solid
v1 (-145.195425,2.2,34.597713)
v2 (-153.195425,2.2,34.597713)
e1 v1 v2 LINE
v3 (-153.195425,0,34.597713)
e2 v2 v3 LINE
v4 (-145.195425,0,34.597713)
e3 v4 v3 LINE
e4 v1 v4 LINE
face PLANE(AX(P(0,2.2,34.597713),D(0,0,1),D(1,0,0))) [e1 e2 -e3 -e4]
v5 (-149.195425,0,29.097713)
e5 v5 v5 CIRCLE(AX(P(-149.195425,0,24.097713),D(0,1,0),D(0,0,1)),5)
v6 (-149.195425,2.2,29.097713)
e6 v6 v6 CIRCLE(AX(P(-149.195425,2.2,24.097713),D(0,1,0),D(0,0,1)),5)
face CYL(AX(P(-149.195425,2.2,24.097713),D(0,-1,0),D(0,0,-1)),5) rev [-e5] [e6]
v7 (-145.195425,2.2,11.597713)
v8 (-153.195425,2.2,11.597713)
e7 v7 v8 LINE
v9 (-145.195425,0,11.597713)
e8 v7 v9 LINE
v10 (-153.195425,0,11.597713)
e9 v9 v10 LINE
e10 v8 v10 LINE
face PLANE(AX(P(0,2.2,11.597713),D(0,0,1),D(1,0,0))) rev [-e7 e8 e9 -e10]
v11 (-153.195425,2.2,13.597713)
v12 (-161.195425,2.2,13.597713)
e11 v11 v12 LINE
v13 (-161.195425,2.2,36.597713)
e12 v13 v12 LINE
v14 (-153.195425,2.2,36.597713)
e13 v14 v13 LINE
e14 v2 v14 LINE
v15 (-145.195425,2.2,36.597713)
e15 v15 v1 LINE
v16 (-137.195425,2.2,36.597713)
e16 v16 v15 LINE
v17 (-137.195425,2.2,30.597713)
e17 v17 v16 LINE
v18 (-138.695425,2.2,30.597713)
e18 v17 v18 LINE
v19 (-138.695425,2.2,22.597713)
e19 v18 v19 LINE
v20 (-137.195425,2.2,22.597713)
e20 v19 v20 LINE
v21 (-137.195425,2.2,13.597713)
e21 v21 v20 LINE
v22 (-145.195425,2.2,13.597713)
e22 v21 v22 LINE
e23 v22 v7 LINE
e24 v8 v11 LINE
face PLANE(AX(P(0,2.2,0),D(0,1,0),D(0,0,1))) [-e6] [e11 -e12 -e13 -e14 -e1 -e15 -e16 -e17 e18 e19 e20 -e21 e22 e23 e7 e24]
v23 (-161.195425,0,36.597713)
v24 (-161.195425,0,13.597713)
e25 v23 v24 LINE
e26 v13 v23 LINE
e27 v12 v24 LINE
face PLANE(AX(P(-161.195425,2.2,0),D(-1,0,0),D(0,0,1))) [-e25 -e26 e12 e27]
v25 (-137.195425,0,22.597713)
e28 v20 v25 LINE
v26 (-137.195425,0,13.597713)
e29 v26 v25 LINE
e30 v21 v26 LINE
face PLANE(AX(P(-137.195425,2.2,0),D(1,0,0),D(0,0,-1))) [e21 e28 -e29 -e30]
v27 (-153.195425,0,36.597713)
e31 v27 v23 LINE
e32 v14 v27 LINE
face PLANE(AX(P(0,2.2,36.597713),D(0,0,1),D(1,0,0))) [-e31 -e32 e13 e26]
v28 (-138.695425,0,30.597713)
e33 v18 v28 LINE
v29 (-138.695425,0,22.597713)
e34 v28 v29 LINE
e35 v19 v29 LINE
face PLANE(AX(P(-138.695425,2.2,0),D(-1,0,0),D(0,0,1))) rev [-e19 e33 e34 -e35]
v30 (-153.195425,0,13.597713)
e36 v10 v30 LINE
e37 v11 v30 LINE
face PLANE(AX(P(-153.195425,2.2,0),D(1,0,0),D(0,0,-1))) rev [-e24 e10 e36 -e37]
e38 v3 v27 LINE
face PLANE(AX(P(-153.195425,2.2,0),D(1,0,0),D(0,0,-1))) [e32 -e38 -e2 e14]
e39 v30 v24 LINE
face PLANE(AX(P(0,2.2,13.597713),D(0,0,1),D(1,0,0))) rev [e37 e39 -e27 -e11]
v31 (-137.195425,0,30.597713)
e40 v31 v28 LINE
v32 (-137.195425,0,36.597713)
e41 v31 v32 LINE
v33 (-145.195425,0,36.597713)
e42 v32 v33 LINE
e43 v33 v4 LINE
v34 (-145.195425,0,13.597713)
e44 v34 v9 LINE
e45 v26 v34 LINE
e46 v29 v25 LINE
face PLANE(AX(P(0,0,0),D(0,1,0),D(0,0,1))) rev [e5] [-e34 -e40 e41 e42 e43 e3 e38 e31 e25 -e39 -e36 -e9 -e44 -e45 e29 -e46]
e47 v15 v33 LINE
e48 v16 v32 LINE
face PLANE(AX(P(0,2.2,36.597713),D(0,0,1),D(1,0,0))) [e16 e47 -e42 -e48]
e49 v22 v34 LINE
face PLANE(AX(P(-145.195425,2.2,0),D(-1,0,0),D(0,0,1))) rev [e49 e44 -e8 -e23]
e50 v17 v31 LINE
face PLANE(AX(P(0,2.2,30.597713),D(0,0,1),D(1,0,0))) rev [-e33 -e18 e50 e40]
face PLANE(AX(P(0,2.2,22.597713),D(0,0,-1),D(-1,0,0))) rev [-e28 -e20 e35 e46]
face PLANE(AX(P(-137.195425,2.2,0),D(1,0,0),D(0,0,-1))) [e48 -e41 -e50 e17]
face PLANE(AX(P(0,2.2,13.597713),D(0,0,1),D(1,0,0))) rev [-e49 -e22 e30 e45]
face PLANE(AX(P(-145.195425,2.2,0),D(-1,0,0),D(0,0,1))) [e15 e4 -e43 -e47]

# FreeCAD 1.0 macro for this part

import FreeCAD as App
import Part
import Sketcher

V = App.Vector

doc = App.newDocument("Part")
body = doc.addObject("PartDesign::Body", "Body")

sketch1 = body.newObject("Sketcher::SketchObject", "Sketch")
sketch1.AttachmentSupport = (doc.getObject("XZ_Plane"), [""])
sketch1.MapMode = "FlatFace"
sketch1.addGeometry([
    Part.LineSegment(V(-145.195425, 13.597713, 0), V(-145.195425, 11.597713, 0)),
    Part.LineSegment(V(-145.195425, 11.597713, 0), V(-153.195425, 11.597713, 0)),
    Part.LineSegment(V(-153.195425, 11.597713, 0), V(-153.195425, 13.597713, 0)),
    Part.LineSegment(V(-153.195425, 13.597713, 0), V(-161.195425, 13.597713, 0)),
    Part.LineSegment(V(-161.195425, 13.597713, 0), V(-161.195425, 36.597713, 0)),
    Part.LineSegment(V(-161.195425, 36.597713, 0), V(-153.195425, 36.597713, 0)),
    Part.LineSegment(V(-153.195425, 36.597713, 0), V(-153.195425, 34.597713, 0)),
    Part.LineSegment(V(-153.195425, 34.597713, 0), V(-145.195425, 34.597713, 0)),
    Part.LineSegment(V(-145.195425, 34.597713, 0), V(-145.195425, 36.597713, 0)),
    Part.LineSegment(V(-145.195425, 36.597713, 0), V(-137.195425, 36.597713, 0)),
    Part.LineSegment(V(-137.195425, 36.597713, 0), V(-137.195425, 30.597713, 0)),
    Part.LineSegment(V(-137.195425, 30.597713, 0), V(-138.695425, 30.597713, 0)),
    Part.LineSegment(V(-138.695425, 30.597713, 0), V(-138.695425, 22.597713, 0)),
    Part.LineSegment(V(-138.695425, 22.597713, 0), V(-137.195425, 22.597713, 0)),
    Part.LineSegment(V(-137.195425, 22.597713, 0), V(-137.195425, 13.597713, 0)),
    Part.LineSegment(V(-137.195425, 13.597713, 0), V(-145.195425, 13.597713, 0)),
    Part.Circle(V(-149.195425, 24.097713, 0), V(0, 0, 1), 5),
], False)
sketch1.addConstraint([
    Sketcher.Constraint("Coincident", 0, 2, 1, 1),
    Sketcher.Constraint("Coincident", 1, 2, 2, 1),
    Sketcher.Constraint("Coincident", 2, 2, 3, 1),
    Sketcher.Constraint("Coincident", 3, 2, 4, 1),
    Sketcher.Constraint("Coincident", 4, 2, 5, 1),
    Sketcher.Constraint("Coincident", 5, 2, 6, 1),
    Sketcher.Constraint("Coincident", 6, 2, 7, 1),
    Sketcher.Constraint("Coincident", 7, 2, 8, 1),
    Sketcher.Constraint("Coincident", 8, 2, 9, 1),
    Sketcher.Constraint("Coincident", 9, 2, 10, 1),
    Sketcher.Constraint("Coincident", 10, 2, 11, 1),
    Sketcher.Constraint("Coincident", 11, 2, 12, 1),
    Sketcher.Constraint("Coincident", 12, 2, 13, 1),
    Sketcher.Constraint("Coincident", 13, 2, 14, 1),
    Sketcher.Constraint("Coincident", 14, 2, 15, 1),
    Sketcher.Constraint("Coincident", 15, 2, 0, 1),
    Sketcher.Constraint("Vertical", 0),
    Sketcher.Constraint("Horizontal", 1),
    Sketcher.Constraint("Vertical", 2),
    Sketcher.Constraint("Horizontal", 3),
    Sketcher.Constraint("Vertical", 4),
    Sketcher.Constraint("Horizontal", 5),
    Sketcher.Constraint("Vertical", 6),
    Sketcher.Constraint("Horizontal", 7),
    Sketcher.Constraint("Vertical", 8),
    Sketcher.Constraint("Horizontal", 9),
    Sketcher.Constraint("Vertical", 10),
    Sketcher.Constraint("Horizontal", 11),
    Sketcher.Constraint("Vertical", 12),
    Sketcher.Constraint("Horizontal", 13),
    Sketcher.Constraint("Vertical", 14),
    Sketcher.Constraint("Horizontal", 15),
    Sketcher.Constraint("Horizontal", 5, 2, 8, 2),
    Sketcher.Constraint("Horizontal", 3, 2, 14, 2),
    Sketcher.Constraint("Vertical", 2, 2, 5, 2),
    Sketcher.Constraint("Vertical", 0, 2, 7, 2),
    Sketcher.Constraint("Vertical", 10, 2, 13, 2),
    Sketcher.Constraint("Equal", 1, 3),
    Sketcher.Constraint("Equal", 7, 9),
    Sketcher.Constraint("Equal", 2, 6),
    Sketcher.Constraint("Equal", 15, 12),
    Sketcher.Constraint("Diameter", 16, 10.0),
    Sketcher.Constraint("DistanceX", 1, 2, 1, 1, 8.0),
    Sketcher.Constraint("DistanceY", 0, 2, 0, 1, 2.0),
    Sketcher.Constraint("DistanceY", 4, 1, 4, 2, 23.0),
    Sketcher.Constraint("DistanceY", 10, 2, 10, 1, 6.0),
    Sketcher.Constraint("DistanceX", 11, 2, 11, 1, 1.5),
    Sketcher.Constraint("DistanceX", 16, 3, 0, 2, 4.0),
    Sketcher.Constraint("DistanceY", 0, 2, 16, 3, 12.5),
    Sketcher.Constraint("DistanceX", 16, 3, -1, 1, 149.195425),
    Sketcher.Constraint("DistanceY", -1, 1, 16, 3, 24.097713),
])
pad1 = body.newObject("PartDesign::Pad", "Pad")
pad1.Profile = sketch1
pad1.Length = 2.2
pad1.Reversed = True

doc.recompute()
